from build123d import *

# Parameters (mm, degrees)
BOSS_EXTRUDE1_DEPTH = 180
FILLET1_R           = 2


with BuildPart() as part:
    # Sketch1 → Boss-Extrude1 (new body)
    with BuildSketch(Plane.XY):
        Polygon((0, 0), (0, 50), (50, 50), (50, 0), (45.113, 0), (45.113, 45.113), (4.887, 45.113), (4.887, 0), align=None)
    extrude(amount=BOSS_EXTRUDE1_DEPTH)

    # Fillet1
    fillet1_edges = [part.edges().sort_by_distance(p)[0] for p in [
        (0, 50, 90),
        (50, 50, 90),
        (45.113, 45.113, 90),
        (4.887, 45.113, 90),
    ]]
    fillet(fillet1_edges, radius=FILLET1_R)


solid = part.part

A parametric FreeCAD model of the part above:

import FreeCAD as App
import Part
import Sketcher
Q = App.Units.Quantity


def edges_at(feature, points):
    """Names of the edges that pass closest to the given points."""
    edges = feature.Shape.Edges
    near = lambda p: min(range(len(edges)), key=lambda i: edges[i].distToShape(Part.Vertex(*p))[0])
    return sorted({f"Edge{near(p) + 1}" for p in points})

doc = App.newDocument("Part")
body = doc.addObject("PartDesign::Body", "Body")

sketch1 = doc.addObject("Sketcher::SketchObject", "Sketch")
body.addObject(sketch1)
sketch1.AttachmentSupport = (doc.XY_Plane, [""])
sketch1.MapMode = "FlatFace"
sketch1.addGeometry([
    Part.LineSegment(App.Vector(0, 50, 0), App.Vector(0, 0, 0)),
    Part.LineSegment(App.Vector(0, 0, 0), App.Vector(4.887, 0, 0)),
    Part.LineSegment(App.Vector(4.887, 0, 0), App.Vector(4.887, 45.113, 0)),
    Part.LineSegment(App.Vector(4.887, 45.113, 0), App.Vector(45.113, 45.113, 0)),
    Part.LineSegment(App.Vector(45.113, 45.113, 0), App.Vector(45.113, 0, 0)),
    Part.LineSegment(App.Vector(45.113, 0, 0), App.Vector(50, 0, 0)),
    Part.LineSegment(App.Vector(50, 0, 0), App.Vector(50, 50, 0)),
    Part.LineSegment(App.Vector(50, 50, 0), App.Vector(0, 50, 0)),
], False)
sketch1.addConstraint([
    Sketcher.Constraint("Coincident", 0, 2, 1, 1),
    Sketcher.Constraint("Coincident", 1, 2, 2, 1),
    Sketcher.Constraint("Coincident", 2, 2, 3, 1),
    Sketcher.Constraint("Coincident", 3, 2, 4, 1),
    Sketcher.Constraint("Coincident", 4, 2, 5, 1),
    Sketcher.Constraint("Coincident", 5, 2, 6, 1),
    Sketcher.Constraint("Coincident", 6, 2, 7, 1),
    Sketcher.Constraint("Coincident", 7, 2, 0, 1),
    Sketcher.Constraint("Vertical", 0),
    Sketcher.Constraint("Horizontal", 1),
    Sketcher.Constraint("Vertical", 2),
    Sketcher.Constraint("Horizontal", 3),
    Sketcher.Constraint("Vertical", 4),
    Sketcher.Constraint("Horizontal", 5),
    Sketcher.Constraint("Vertical", 6),
    Sketcher.Constraint("Horizontal", 7),
    Sketcher.Constraint("Coincident", 0, 2, -1, 1),
    Sketcher.Constraint("PointOnObject", 4, 2, -1),
    Sketcher.Constraint("Equal", 1, 5),
    Sketcher.Constraint("Equal", 7, 0),
    Sketcher.Constraint("DistanceX", 7, 2, 7, 1, Q("50 mm")),
    Sketcher.Constraint("DistanceX", 1, 1, 1, 2, Q("4.887 mm")),
    Sketcher.Constraint("DistanceY", 2, 1, 2, 2, Q("45.113 mm")),
])
pad1 = doc.addObject("PartDesign::Pad", "Pad")
body.addObject(pad1)
pad1.Profile = sketch1
pad1.Length = 180
doc.recompute()

fillet = doc.addObject("PartDesign::Fillet", "Fillet")
body.addObject(fillet)
fillet.Base = (pad1, edges_at(pad1, [
    (0, 50, 90),
    (50, 50, 90),
    (45.113, 45.113, 90),
    (4.887, 45.113, 90),
]))
fillet.Radius = 2

doc.recompute()
